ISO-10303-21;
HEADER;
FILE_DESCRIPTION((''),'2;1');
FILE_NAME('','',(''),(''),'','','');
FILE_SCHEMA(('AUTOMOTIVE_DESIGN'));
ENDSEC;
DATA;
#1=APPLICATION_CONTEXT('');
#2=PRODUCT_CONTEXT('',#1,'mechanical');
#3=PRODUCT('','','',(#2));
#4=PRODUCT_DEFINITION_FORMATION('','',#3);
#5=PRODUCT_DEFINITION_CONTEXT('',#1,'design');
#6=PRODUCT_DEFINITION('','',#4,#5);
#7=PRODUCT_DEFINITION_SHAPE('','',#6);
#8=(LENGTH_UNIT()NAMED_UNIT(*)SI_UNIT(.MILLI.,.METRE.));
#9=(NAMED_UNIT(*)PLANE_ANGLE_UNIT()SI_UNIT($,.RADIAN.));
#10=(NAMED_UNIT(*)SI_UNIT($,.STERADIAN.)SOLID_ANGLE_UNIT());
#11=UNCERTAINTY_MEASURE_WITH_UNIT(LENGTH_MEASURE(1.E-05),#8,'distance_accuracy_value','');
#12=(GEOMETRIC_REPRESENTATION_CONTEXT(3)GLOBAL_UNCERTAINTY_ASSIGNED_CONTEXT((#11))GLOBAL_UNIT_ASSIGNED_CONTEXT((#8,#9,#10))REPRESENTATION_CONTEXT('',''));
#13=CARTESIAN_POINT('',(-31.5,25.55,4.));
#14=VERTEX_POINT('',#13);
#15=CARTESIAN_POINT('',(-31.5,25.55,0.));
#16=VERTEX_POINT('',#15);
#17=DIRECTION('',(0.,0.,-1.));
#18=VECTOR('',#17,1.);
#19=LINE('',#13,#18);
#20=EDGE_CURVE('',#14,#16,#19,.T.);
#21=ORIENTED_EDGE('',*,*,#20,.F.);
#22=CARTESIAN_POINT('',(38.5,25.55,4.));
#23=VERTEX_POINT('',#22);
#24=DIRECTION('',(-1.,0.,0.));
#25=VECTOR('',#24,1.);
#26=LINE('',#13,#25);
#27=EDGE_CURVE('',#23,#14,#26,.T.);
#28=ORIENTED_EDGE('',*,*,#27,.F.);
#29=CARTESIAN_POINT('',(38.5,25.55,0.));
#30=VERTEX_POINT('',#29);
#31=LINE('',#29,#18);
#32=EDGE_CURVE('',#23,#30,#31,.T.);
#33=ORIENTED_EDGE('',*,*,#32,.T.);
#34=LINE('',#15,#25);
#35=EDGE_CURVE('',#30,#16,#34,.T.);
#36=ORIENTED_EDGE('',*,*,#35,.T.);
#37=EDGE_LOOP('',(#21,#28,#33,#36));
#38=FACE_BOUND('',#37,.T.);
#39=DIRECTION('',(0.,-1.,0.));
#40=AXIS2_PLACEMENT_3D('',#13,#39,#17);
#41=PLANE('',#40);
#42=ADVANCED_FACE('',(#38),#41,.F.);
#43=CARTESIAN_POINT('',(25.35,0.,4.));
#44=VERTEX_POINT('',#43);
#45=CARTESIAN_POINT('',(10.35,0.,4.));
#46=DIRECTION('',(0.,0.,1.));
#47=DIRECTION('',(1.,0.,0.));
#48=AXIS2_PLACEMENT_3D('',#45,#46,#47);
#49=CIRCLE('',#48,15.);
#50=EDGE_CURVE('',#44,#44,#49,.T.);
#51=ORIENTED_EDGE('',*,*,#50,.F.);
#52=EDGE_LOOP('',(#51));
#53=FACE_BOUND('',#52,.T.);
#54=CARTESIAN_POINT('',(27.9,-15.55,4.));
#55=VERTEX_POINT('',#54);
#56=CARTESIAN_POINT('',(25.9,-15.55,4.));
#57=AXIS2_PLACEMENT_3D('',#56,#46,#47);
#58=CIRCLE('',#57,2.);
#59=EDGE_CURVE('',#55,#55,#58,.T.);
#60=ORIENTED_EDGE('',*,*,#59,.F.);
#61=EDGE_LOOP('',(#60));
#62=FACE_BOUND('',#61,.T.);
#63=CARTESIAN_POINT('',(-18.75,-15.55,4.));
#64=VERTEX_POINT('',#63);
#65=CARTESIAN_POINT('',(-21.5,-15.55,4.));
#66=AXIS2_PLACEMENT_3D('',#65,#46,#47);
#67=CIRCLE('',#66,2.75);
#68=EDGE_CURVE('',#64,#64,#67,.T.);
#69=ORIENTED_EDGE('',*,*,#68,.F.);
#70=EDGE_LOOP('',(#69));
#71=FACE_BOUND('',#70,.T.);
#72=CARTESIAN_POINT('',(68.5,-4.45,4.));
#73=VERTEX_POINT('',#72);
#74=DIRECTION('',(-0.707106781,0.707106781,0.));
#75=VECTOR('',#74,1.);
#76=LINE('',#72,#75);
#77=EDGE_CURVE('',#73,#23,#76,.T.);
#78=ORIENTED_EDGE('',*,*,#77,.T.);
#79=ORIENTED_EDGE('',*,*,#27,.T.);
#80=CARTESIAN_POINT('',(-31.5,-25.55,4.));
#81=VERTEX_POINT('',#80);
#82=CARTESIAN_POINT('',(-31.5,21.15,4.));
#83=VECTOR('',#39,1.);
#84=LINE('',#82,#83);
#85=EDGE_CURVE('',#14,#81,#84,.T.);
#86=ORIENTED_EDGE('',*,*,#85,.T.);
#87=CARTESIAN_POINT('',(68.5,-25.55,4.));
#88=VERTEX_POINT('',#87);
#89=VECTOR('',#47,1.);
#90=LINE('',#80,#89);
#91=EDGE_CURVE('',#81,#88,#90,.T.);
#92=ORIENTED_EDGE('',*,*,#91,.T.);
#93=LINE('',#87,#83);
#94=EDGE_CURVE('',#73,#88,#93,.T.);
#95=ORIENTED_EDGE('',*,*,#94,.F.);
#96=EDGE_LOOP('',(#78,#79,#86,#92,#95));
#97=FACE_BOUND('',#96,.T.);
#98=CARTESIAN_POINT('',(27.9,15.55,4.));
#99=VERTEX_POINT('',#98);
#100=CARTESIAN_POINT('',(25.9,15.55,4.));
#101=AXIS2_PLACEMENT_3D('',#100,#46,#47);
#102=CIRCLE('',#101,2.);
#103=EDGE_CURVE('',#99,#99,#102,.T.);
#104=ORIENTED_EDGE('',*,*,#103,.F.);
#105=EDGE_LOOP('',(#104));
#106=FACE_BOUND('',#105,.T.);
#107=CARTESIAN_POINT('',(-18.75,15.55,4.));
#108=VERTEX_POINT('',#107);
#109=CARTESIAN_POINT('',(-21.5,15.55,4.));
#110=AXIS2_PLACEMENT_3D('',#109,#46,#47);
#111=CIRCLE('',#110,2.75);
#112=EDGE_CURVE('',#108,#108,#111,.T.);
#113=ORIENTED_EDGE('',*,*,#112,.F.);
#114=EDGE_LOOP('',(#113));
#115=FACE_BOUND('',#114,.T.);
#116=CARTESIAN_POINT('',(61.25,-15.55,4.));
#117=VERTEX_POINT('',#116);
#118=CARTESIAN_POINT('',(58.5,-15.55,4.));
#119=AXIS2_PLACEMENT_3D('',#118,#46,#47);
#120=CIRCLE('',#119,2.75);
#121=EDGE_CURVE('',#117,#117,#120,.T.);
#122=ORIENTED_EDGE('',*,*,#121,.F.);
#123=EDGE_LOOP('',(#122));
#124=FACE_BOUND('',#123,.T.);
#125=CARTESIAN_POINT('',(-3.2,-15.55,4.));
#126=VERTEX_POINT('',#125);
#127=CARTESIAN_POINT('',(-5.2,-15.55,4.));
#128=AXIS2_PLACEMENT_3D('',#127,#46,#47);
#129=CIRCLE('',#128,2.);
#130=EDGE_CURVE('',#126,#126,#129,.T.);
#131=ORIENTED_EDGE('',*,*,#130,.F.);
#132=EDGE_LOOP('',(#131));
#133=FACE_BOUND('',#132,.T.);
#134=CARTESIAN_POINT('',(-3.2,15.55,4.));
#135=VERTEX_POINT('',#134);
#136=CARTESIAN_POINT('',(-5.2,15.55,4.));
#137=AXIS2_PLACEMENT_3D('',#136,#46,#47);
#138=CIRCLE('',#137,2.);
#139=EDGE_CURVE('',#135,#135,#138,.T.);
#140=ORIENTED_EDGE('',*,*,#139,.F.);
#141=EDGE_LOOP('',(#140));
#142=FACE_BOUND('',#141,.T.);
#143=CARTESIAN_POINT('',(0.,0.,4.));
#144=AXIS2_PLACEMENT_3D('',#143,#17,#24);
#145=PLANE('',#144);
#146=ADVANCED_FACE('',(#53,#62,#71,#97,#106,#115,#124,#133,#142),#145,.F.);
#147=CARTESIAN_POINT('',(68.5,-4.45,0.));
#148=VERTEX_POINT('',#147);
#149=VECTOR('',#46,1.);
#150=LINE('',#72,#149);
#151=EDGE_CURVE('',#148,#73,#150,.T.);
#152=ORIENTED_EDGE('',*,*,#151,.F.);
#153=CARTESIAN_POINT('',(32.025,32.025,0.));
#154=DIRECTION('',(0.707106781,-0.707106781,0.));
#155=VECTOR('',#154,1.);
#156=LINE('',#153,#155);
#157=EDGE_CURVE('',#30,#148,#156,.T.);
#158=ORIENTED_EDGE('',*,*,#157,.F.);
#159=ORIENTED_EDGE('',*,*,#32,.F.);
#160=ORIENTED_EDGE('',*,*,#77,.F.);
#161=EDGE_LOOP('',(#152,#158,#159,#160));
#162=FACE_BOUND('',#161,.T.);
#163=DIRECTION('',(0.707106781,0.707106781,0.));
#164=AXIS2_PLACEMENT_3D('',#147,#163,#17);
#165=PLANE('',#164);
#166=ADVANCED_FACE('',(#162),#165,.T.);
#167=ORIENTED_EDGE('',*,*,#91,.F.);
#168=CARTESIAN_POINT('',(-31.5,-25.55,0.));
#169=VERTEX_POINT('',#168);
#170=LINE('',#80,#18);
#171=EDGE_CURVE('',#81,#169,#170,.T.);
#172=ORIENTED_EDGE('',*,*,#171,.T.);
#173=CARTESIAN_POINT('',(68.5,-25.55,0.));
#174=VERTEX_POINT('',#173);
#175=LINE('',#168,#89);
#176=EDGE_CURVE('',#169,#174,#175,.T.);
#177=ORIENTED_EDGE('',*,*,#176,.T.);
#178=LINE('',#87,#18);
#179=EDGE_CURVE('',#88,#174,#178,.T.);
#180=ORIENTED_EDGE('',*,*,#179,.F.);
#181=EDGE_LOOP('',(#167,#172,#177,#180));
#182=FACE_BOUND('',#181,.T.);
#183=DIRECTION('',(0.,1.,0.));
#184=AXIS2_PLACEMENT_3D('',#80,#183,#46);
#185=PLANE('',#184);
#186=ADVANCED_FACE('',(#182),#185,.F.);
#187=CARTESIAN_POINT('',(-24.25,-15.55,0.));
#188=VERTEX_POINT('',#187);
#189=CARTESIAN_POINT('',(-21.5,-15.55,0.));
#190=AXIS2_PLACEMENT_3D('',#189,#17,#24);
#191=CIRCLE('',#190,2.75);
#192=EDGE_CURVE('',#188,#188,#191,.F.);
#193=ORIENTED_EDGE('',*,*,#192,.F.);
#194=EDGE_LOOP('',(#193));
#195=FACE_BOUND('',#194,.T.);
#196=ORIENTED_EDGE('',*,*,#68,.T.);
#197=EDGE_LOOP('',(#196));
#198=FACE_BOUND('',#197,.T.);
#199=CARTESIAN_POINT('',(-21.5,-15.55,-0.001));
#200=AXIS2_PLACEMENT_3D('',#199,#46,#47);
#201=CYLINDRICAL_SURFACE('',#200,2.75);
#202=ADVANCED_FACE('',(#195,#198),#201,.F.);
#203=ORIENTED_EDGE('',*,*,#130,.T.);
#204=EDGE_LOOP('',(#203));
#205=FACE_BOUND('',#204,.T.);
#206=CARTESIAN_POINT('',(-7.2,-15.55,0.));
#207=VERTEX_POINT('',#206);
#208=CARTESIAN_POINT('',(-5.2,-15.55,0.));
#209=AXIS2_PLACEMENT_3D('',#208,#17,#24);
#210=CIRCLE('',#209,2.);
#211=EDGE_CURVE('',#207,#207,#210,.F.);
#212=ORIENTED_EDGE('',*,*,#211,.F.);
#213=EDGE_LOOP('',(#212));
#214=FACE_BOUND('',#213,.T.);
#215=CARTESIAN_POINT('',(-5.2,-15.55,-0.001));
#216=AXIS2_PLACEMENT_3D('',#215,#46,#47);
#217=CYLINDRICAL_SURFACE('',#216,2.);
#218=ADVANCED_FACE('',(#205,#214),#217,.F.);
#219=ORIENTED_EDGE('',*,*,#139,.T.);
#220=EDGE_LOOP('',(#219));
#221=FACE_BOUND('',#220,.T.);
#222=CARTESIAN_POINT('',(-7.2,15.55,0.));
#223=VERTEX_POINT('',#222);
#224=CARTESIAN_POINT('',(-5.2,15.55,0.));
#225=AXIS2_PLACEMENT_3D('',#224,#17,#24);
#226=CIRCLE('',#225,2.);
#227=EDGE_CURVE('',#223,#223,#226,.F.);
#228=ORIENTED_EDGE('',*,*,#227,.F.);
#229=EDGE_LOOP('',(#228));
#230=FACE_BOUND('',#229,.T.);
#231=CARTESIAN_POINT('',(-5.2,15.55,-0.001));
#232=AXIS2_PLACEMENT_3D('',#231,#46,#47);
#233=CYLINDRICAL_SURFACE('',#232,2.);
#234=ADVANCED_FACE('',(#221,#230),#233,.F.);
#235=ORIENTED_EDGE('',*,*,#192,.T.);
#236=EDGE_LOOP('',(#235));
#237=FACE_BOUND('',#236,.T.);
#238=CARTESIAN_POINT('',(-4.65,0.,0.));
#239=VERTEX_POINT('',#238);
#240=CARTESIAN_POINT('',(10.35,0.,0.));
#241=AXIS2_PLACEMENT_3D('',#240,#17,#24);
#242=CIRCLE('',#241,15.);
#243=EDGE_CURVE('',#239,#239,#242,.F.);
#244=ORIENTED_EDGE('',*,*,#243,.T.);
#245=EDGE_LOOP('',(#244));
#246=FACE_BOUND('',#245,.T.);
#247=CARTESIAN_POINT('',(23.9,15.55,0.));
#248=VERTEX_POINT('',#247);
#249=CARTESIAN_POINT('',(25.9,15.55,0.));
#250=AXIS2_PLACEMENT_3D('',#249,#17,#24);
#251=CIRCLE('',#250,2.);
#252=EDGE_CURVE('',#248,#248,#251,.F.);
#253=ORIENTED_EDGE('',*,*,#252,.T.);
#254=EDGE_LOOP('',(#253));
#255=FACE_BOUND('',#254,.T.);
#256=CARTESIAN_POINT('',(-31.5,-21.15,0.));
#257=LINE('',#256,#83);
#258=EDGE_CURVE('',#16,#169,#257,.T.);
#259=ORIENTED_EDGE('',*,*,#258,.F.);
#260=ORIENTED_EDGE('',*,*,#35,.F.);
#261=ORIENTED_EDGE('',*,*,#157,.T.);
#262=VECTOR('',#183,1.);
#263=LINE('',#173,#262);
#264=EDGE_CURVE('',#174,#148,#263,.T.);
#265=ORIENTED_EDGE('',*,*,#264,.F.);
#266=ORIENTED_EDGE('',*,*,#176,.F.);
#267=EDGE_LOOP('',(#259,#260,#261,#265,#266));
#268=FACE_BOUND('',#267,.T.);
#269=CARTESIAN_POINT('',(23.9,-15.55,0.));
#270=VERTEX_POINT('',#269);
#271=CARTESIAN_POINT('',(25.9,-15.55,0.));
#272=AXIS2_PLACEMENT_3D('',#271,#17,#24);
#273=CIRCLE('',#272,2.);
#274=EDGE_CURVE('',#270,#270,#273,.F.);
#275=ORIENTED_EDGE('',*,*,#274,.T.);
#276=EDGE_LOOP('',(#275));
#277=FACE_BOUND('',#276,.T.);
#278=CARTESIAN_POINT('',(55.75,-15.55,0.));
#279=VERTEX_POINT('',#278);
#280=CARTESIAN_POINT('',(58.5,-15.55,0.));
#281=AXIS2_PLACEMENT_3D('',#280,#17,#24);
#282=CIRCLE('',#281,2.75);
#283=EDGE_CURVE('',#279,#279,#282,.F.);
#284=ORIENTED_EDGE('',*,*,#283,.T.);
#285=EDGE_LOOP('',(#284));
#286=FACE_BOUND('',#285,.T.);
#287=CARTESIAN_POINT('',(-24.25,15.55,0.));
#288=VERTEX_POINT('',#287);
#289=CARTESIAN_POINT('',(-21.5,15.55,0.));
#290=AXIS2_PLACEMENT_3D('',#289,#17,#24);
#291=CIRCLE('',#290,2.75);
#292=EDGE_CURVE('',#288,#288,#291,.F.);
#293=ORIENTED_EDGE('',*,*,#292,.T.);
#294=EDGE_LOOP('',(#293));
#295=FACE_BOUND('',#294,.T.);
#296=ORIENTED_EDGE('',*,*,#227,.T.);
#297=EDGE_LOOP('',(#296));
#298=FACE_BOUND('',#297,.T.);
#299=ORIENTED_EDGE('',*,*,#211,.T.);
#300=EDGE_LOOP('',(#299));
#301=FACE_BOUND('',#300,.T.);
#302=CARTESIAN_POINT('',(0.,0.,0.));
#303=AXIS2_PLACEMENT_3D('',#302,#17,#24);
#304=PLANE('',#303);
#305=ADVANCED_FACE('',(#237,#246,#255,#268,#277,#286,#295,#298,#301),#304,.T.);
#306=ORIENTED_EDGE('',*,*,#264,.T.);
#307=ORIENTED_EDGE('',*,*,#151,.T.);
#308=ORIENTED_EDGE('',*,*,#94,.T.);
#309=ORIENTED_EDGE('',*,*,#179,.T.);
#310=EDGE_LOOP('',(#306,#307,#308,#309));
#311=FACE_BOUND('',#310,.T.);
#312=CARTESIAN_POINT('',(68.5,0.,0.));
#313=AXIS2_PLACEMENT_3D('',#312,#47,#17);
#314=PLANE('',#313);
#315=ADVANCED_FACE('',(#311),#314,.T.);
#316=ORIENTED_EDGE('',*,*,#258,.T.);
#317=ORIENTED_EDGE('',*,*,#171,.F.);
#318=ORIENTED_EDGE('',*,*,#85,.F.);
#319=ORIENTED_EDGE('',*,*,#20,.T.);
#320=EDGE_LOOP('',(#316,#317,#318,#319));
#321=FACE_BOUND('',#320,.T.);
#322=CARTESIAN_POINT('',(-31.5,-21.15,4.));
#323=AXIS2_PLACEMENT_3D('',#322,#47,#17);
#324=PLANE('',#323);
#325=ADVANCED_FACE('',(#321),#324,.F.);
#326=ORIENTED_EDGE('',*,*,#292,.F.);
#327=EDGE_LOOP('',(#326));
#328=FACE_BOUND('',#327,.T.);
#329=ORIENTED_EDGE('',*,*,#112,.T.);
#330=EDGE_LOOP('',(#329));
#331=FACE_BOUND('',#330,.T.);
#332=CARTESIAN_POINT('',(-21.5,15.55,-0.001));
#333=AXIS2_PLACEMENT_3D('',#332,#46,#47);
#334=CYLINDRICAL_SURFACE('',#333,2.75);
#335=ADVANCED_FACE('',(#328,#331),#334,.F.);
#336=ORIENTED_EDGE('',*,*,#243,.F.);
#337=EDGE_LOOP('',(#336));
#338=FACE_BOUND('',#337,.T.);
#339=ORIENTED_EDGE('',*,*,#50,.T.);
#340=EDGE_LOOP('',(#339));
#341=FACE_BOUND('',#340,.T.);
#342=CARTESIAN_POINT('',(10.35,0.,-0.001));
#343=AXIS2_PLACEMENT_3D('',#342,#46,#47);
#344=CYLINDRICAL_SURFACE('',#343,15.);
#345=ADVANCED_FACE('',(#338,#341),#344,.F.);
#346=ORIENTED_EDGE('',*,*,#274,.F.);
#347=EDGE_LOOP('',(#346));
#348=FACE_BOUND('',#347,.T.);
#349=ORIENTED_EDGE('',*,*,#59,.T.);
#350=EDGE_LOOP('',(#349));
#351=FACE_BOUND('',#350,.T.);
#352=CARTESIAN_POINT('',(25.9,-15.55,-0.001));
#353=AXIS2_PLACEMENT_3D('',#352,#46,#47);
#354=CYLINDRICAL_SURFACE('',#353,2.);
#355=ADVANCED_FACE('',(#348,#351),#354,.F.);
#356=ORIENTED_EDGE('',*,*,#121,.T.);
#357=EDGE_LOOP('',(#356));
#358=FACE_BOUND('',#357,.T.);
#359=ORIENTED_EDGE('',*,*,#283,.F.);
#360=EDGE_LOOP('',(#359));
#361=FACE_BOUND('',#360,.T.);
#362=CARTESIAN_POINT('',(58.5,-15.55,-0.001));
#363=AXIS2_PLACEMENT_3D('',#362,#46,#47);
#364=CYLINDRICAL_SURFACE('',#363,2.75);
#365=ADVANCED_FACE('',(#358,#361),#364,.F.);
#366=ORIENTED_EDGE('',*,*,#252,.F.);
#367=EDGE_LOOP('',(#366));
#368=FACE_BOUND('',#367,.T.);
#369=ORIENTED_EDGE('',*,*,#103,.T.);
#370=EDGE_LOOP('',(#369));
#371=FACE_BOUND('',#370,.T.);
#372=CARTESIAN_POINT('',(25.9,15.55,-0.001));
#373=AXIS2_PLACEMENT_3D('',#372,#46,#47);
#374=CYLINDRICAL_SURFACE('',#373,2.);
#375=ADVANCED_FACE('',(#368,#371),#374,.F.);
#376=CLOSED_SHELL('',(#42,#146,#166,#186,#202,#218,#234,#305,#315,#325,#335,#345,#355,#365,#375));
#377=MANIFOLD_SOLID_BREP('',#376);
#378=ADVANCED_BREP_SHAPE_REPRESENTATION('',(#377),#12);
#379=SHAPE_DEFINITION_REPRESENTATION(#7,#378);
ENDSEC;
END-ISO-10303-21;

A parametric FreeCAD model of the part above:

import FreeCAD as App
import Part
import Sketcher
from FreeCAD import Vector
Q = App.Units.Quantity


def edges_at(feature, points):
    """Names of the edges that pass closest to the given points."""
    edges = feature.Shape.Edges
    near = lambda p: min(range(len(edges)), key=lambda i: edges[i].distToShape(Part.Vertex(*p))[0])
    return sorted({f"Edge{near(p) + 1}" for p in points})

doc = App.newDocument("Part")
body = doc.addObject("PartDesign::Body", "Body")

sketch1 = body.newObject("Sketcher::SketchObject", "Sketch")
sketch1.AttachmentSupport = (doc.getObject("XY_Plane"), [""])
sketch1.MapMode = "FlatFace"
sketch1.addGeometry(Part.LineSegment(Vector(-31.5, -25.55, 0), Vector(31.5, -25.55, 0)), False)
sketch1.addGeometry(Part.LineSegment(Vector(31.5, -25.55, 0), Vector(31.5, 25.55, 0)), False)
sketch1.addGeometry(Part.LineSegment(Vector(31.5, 25.55, 0), Vector(-31.5, 25.55, 0)), False)
sketch1.addGeometry(Part.LineSegment(Vector(-31.5, 25.55, 0), Vector(-31.5, -25.55, 0)), False)
sketch1.addConstraint(Sketcher.Constraint("Coincident", 0, 2, 1, 1))
sketch1.addConstraint(Sketcher.Constraint("Coincident", 1, 2, 2, 1))
sketch1.addConstraint(Sketcher.Constraint("Coincident", 2, 2, 3, 1))
sketch1.addConstraint(Sketcher.Constraint("Coincident", 3, 2, 0, 1))
sketch1.addConstraint(Sketcher.Constraint("Horizontal", 0))
sketch1.addConstraint(Sketcher.Constraint("Vertical", 1))
sketch1.addConstraint(Sketcher.Constraint("Horizontal", 2))
sketch1.addConstraint(Sketcher.Constraint("Vertical", 3))
sketch1.addConstraint(Sketcher.Constraint("Symmetric", 0, 2, 2, 2, -1, 1))
sketch1.addConstraint(Sketcher.Constraint("DistanceX", 0, 1, 0, 2, Q("63 mm")))
sketch1.addConstraint(Sketcher.Constraint("DistanceY", 1, 1, 1, 2, Q("51.1 mm")))
pad1 = body.newObject("PartDesign::Pad", "Pad")
pad1.Profile = sketch1
pad1.Length = 4

sketch2 = body.newObject("Sketcher::SketchObject", "Sketch001")
sketch2.AttachmentSupport = (doc.getObject("XY_Plane"), [""])
sketch2.MapMode = "FlatFace"
sketch2.AttachmentOffset = App.Placement(Vector(0, 0, 4), App.Rotation())
sketch2.addGeometry(Part.Circle(Vector(-5.2, 15.55, 0), Vector(0, 0, 1), 2), False)
sketch2.addConstraint(Sketcher.Constraint("Diameter", 0, Q("4 mm")))
sketch2.addConstraint(Sketcher.Constraint("DistanceX", 0, 3, -1, 1, Q("5.2 mm")))
sketch2.addConstraint(Sketcher.Constraint("DistanceY", -1, 1, 0, 3, Q("15.55 mm")))
pocket1 = body.newObject("PartDesign::Pocket", "Pocket")
pocket1.Profile = sketch2
pocket1.Type = "UpToFirst"

sketch3 = body.newObject("Sketcher::SketchObject", "Sketch002")
sketch3.AttachmentSupport = (doc.getObject("XY_Plane"), [""])
sketch3.MapMode = "FlatFace"
sketch3.AttachmentOffset = App.Placement(Vector(0, 0, 4), App.Rotation())
sketch3.addGeometry(Part.Circle(Vector(25.9, 15.55, 0), Vector(0, 0, 1), 2), False)
sketch3.addConstraint(Sketcher.Constraint("Diameter", 0, Q("4 mm")))
sketch3.addConstraint(Sketcher.Constraint("DistanceX", -1, 1, 0, 3, Q("25.9 mm")))
sketch3.addConstraint(Sketcher.Constraint("DistanceY", -1, 1, 0, 3, Q("15.55 mm")))
pocket2 = body.newObject("PartDesign::Pocket", "Pocket001")
pocket2.Profile = sketch3
pocket2.Type = "UpToFirst"

sketch4 = body.newObject("Sketcher::SketchObject", "Sketch003")
sketch4.AttachmentSupport = (doc.getObject("XY_Plane"), [""])
sketch4.MapMode = "FlatFace"
sketch4.AttachmentOffset = App.Placement(Vector(0, 0, 4), App.Rotation())
sketch4.addGeometry(Part.Circle(Vector(25.9, -15.55, 0), Vector(0, 0, 1), 2), False)
sketch4.addConstraint(Sketcher.Constraint("Diameter", 0, Q("4 mm")))
sketch4.addConstraint(Sketcher.Constraint("DistanceX", -1, 1, 0, 3, Q("25.9 mm")))
sketch4.addConstraint(Sketcher.Constraint("DistanceY", 0, 3, -1, 1, Q("15.55 mm")))
pocket3 = body.newObject("PartDesign::Pocket", "Pocket002")
pocket3.Profile = sketch4
pocket3.Type = "UpToFirst"

sketch5 = body.newObject("Sketcher::SketchObject", "Sketch004")
sketch5.AttachmentSupport = (doc.getObject("XY_Plane"), [""])
sketch5.MapMode = "FlatFace"
sketch5.AttachmentOffset = App.Placement(Vector(0, 0, 4), App.Rotation())
sketch5.addGeometry(Part.Circle(Vector(-5.2, -15.55, 0), Vector(0, 0, 1), 2), False)
sketch5.addConstraint(Sketcher.Constraint("Diameter", 0, Q("4 mm")))
sketch5.addConstraint(Sketcher.Constraint("DistanceX", 0, 3, -1, 1, Q("5.2 mm")))
sketch5.addConstraint(Sketcher.Constraint("DistanceY", 0, 3, -1, 1, Q("15.55 mm")))
pocket4 = body.newObject("PartDesign::Pocket", "Pocket003")
pocket4.Profile = sketch5
pocket4.Type = "UpToFirst"

sketch6 = body.newObject("Sketcher::SketchObject", "Sketch005")
sketch6.AttachmentSupport = (doc.getObject("XY_Plane"), [""])
sketch6.MapMode = "FlatFace"
sketch6.AttachmentOffset = App.Placement(Vector(0, 0, 4), App.Rotation())
sketch6.addGeometry(Part.Circle(Vector(-21.5, 15.55, 0), Vector(0, 0, 1), 2.75), False)
sketch6.addConstraint(Sketcher.Constraint("Diameter", 0, Q("5.5 mm")))
sketch6.addConstraint(Sketcher.Constraint("DistanceX", 0, 3, -1, 1, Q("21.5 mm")))
sketch6.addConstraint(Sketcher.Constraint("DistanceY", -1, 1, 0, 3, Q("15.55 mm")))
pocket5 = body.newObject("PartDesign::Pocket", "Pocket004")
pocket5.Profile = sketch6
pocket5.Type = "UpToFirst"

sketch7 = body.newObject("Sketcher::SketchObject", "Sketch006")
sketch7.AttachmentSupport = (doc.getObject("XY_Plane"), [""])
sketch7.MapMode = "FlatFace"
sketch7.AttachmentOffset = App.Placement(Vector(0, 0, 4), App.Rotation())
sketch7.addGeometry(Part.Circle(Vector(-21.5, -15.55, 0), Vector(0, 0, 1), 2.75), False)
sketch7.addConstraint(Sketcher.Constraint("Diameter", 0, Q("5.5 mm")))
sketch7.addConstraint(Sketcher.Constraint("DistanceX", 0, 3, -1, 1, Q("21.5 mm")))
sketch7.addConstraint(Sketcher.Constraint("DistanceY", 0, 3, -1, 1, Q("15.55 mm")))
pocket6 = body.newObject("PartDesign::Pocket", "Pocket005")
pocket6.Profile = sketch7
pocket6.Type = "UpToFirst"

sketch8 = body.newObject("Sketcher::SketchObject", "Sketch007")
sketch8.AttachmentSupport = (doc.getObject("XY_Plane"), [""])
sketch8.MapMode = "FlatFace"
sketch8.AttachmentOffset = App.Placement(Vector(0, 0, 4), App.Rotation())
sketch8.addGeometry(Part.Circle(Vector(10.35, 0, 0), Vector(0, 0, 1), 15), False)
sketch8.addConstraint(Sketcher.Constraint("PointOnObject", 0, 3, -1))
sketch8.addConstraint(Sketcher.Constraint("Diameter", 0, Q("30 mm")))
sketch8.addConstraint(Sketcher.Constraint("DistanceX", -1, 1, 0, 3, Q("10.35 mm")))
pocket7 = body.newObject("PartDesign::Pocket", "Pocket006")
pocket7.Profile = sketch8
pocket7.Type = "UpToFirst"

sketch9 = body.newObject("Sketcher::SketchObject", "Sketch008")
sketch9.AttachmentSupport = (doc.getObject("YZ_Plane"), [""])
sketch9.MapMode = "FlatFace"
sketch9.AttachmentOffset = App.Placement(Vector(0, 0, 31.5), App.Rotation())
sketch9.addGeometry(Part.LineSegment(Vector(25.55, 4, 0), Vector(-25.55, 4, 0)), False)
sketch9.addGeometry(Part.LineSegment(Vector(-25.55, 4, 0), Vector(-25.55, 0, 0)), False)
sketch9.addGeometry(Part.LineSegment(Vector(-25.55, 0, 0), Vector(25.55, 0, 0)), False)
sketch9.addGeometry(Part.LineSegment(Vector(25.55, 0, 0), Vector(25.55, 4, 0)), False)
sketch9.addConstraint(Sketcher.Constraint("Coincident", 0, 2, 1, 1))
sketch9.addConstraint(Sketcher.Constraint("Coincident", 1, 2, 2, 1))
sketch9.addConstraint(Sketcher.Constraint("Coincident", 2, 2, 3, 1))
sketch9.addConstraint(Sketcher.Constraint("Coincident", 3, 2, 0, 1))
sketch9.addConstraint(Sketcher.Constraint("Horizontal", 0))
sketch9.addConstraint(Sketcher.Constraint("Vertical", 1))
sketch9.addConstraint(Sketcher.Constraint("Horizontal", 2))
sketch9.addConstraint(Sketcher.Constraint("Vertical", 3))
sketch9.addConstraint(Sketcher.Constraint("Symmetric", 1, 2, 2, 2, -1, 1))
sketch9.addConstraint(Sketcher.Constraint("DistanceY", 1, 2, 1, 1, Q("4 mm")))
sketch9.addConstraint(Sketcher.Constraint("DistanceX", 0, 2, 0, 1, Q("51.1 mm")))
pad2 = body.newObject("PartDesign::Pad", "Pad001")
pad2.Profile = sketch9
pad2.Length = 37

sketch10 = body.newObject("Sketcher::SketchObject", "Sketch009")
sketch10.AttachmentSupport = (doc.getObject("XY_Plane"), [""])
sketch10.MapMode = "FlatFace"
sketch10.AttachmentOffset = App.Placement(Vector(0, 0, 4), App.Rotation())
sketch10.addGeometry(Part.Circle(Vector(58.5, -15.55, 0), Vector(0, 0, 1), 2.75), False)
sketch10.addConstraint(Sketcher.Constraint("Diameter", 0, Q("5.5 mm")))
sketch10.addConstraint(Sketcher.Constraint("DistanceX", -1, 1, 0, 3, Q("58.5 mm")))
sketch10.addConstraint(Sketcher.Constraint("DistanceY", 0, 3, -1, 1, Q("15.55 mm")))
pocket8 = body.newObject("PartDesign::Pocket", "Pocket007")
pocket8.Profile = sketch10
pocket8.Type = "UpToFirst"
doc.recompute()

chamfer = body.newObject("PartDesign::Chamfer", "Chamfer")
chamfer.Base = (pocket8, edges_at(pocket8, [(68.5, 25.55, 2)]))
chamfer.Size = 30

doc.recompute()
